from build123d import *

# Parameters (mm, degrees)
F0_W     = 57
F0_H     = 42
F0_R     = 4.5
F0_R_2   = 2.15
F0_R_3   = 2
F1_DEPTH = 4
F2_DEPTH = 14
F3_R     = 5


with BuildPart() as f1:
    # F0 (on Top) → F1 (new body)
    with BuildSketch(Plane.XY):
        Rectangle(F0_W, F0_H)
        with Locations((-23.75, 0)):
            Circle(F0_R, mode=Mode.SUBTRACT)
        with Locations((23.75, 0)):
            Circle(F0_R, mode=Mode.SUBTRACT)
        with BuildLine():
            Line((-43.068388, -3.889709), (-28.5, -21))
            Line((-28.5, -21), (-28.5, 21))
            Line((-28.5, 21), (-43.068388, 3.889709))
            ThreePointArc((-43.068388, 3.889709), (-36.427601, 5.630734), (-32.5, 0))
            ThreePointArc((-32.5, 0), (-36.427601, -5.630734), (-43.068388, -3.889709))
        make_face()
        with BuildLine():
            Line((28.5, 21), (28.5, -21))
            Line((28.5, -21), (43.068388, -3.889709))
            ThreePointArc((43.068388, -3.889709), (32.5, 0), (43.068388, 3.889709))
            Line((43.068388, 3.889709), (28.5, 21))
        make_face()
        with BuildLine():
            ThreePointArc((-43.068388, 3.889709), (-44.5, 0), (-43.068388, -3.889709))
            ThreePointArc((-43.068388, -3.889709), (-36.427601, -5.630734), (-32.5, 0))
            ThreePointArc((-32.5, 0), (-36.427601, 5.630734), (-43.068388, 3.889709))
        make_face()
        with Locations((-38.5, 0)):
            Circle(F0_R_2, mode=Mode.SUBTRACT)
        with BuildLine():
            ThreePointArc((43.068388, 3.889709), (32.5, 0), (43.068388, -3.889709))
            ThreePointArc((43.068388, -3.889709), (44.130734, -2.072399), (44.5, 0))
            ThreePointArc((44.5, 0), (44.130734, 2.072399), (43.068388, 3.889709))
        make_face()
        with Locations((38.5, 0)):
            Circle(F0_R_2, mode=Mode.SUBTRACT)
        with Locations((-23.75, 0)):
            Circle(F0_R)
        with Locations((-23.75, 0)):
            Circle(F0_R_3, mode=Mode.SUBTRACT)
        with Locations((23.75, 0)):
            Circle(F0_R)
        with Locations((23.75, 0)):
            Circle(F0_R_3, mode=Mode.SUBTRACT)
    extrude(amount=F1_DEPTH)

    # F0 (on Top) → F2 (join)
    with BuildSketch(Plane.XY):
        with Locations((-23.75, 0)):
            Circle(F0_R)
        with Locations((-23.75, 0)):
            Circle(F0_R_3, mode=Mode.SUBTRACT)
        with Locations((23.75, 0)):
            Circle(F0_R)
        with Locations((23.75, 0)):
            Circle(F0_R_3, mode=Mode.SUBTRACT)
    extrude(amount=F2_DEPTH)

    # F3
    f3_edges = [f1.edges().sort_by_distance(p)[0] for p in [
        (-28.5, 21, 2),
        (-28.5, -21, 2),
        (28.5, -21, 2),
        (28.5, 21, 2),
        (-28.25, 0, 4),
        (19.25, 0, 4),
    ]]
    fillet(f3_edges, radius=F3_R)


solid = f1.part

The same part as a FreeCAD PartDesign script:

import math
import FreeCAD as App
import Part
import Sketcher
Q = App.Units.Quantity


def edges_at(feature, points):
    """Names of the edges that pass closest to the given points."""
    edges = feature.Shape.Edges
    near = lambda p: min(range(len(edges)), key=lambda i: edges[i].distToShape(Part.Vertex(*p))[0])
    return sorted({f"Edge{near(p) + 1}" for p in points})

doc = App.newDocument("Part")
body = doc.addObject("PartDesign::Body", "Body")

# Sketch on XY plane
sketch1 = doc.addObject("Sketcher::SketchObject", "Sketch")
body.addObject(sketch1)
sketch1.AttachmentSupport = (doc.XY_Plane, [""])
sketch1.MapMode = "FlatFace"
sketch1.addGeometry(Part.LineSegment(App.Vector(-28.5, -21, 0), App.Vector(28.5, -21, 0)), False)
sketch1.addGeometry(Part.LineSegment(App.Vector(28.5, -21, 0), App.Vector(43.1, -3.9, 0)), False)
sketch1.addGeometry(Part.ArcOfCircle(Part.Circle(App.Vector(38.5, 0, 0), App.Vector(0, 0, 1), 6), math.radians(-40), math.radians(0)), False)
sketch1.addGeometry(Part.ArcOfCircle(Part.Circle(App.Vector(38.5, 0, 0), App.Vector(0, 0, 1), 6), math.radians(0), math.radians(40)), False)
sketch1.addGeometry(Part.LineSegment(App.Vector(43.1, 3.9, 0), App.Vector(28.5, 21, 0)), False)
sketch1.addGeometry(Part.LineSegment(App.Vector(28.5, 21, 0), App.Vector(-28.5, 21, 0)), False)
sketch1.addGeometry(Part.LineSegment(App.Vector(-28.5, 21, 0), App.Vector(-43.1, 3.9, 0)), False)
sketch1.addGeometry(Part.ArcOfCircle(Part.Circle(App.Vector(-38.5, 0, 0), App.Vector(0, 0, 1), 6), math.radians(140), math.radians(220)), False)
sketch1.addGeometry(Part.LineSegment(App.Vector(-43.1, -3.9, 0), App.Vector(-28.5, -21, 0)), False)
sketch1.addGeometry(Part.Circle(App.Vector(-38.5, 0, 0), App.Vector(0, 0, 1), 2.1), False)
sketch1.addGeometry(Part.Circle(App.Vector(-23.8, 0, 0), App.Vector(0, 0, 1), 2), False)
sketch1.addGeometry(Part.Circle(App.Vector(23.8, 0, 0), App.Vector(0, 0, 1), 2), False)
sketch1.addGeometry(Part.Circle(App.Vector(38.5, 0, 0), App.Vector(0, 0, 1), 2.1), False)
sketch1.addConstraint(Sketcher.Constraint("Coincident", 0, 2, 1, 1))
sketch1.addConstraint(Sketcher.Constraint("Tangent", 1, 2, 2, 1))
sketch1.addConstraint(Sketcher.Constraint("Tangent", 2, 2, 3, 1))
sketch1.addConstraint(Sketcher.Constraint("Tangent", 3, 2, 4, 1))
sketch1.addConstraint(Sketcher.Constraint("Coincident", 4, 2, 5, 1))
sketch1.addConstraint(Sketcher.Constraint("Coincident", 5, 2, 6, 1))
sketch1.addConstraint(Sketcher.Constraint("Tangent", 6, 2, 7, 1))
sketch1.addConstraint(Sketcher.Constraint("Tangent", 7, 2, 8, 1))
sketch1.addConstraint(Sketcher.Constraint("Coincident", 8, 2, 0, 1))
sketch1.addConstraint(Sketcher.Constraint("Horizontal", 0))
sketch1.addConstraint(Sketcher.Constraint("Horizontal", 5))
sketch1.addConstraint(Sketcher.Constraint("Coincident", 9, 3, 7, 3))
sketch1.addConstraint(Sketcher.Constraint("Coincident", 12, 3, 2, 3))
sketch1.addConstraint(Sketcher.Constraint("Equal", 2, 3))
sketch1.addConstraint(Sketcher.Constraint("Equal", 10, 11))
sketch1.addConstraint(Sketcher.Constraint("Equal", 9, 12))
sketch1.addConstraint(Sketcher.Constraint("Symmetric", 2, 3, 7, 3, -1, 1))
sketch1.addConstraint(Sketcher.Constraint("Symmetric", 10, 3, 11, 3, -1, 1))
sketch1.addConstraint(Sketcher.Constraint("Symmetric", 0, 2, 5, 2, -1, 1))
sketch1.addConstraint(Sketcher.Constraint("Symmetric", 3, 2, 7, 2, -1, 1))
sketch1.addConstraint(Sketcher.Constraint("Symmetric", 3, 2, 6, 2, -2))
sketch1.addConstraint(Sketcher.Constraint("PointOnObject", 10, 3, -1))
sketch1.addConstraint(Sketcher.Constraint("PointOnObject", 2, 2, -1))
sketch1.addConstraint(Sketcher.Constraint("Diameter", 10, Q("4 mm")))
sketch1.addConstraint(Sketcher.Constraint("Radius", 2, Q("6 mm")))
sketch1.addConstraint(Sketcher.Constraint("Diameter", 9, Q("4.3 mm")))
sketch1.addConstraint(Sketcher.Constraint("DistanceX", 0, 1, 0, 2, Q("57 mm")))
sketch1.addConstraint(Sketcher.Constraint("DistanceY", 0, 2, -1, 1, Q("21 mm")))
sketch1.addConstraint(Sketcher.Constraint("DistanceX", 7, 3, 2, 3, Q("76.999999 mm")))
sketch1.addConstraint(Sketcher.Constraint("DistanceX", 10, 3, 11, 3, Q("47.5 mm")))
pad1 = doc.addObject("PartDesign::Pad", "Pad")
body.addObject(pad1)
pad1.Profile = sketch1
pad1.Length = 4

# Sketch on XY plane
sketch2 = doc.addObject("Sketcher::SketchObject", "Sketch001")
body.addObject(sketch2)
sketch2.AttachmentSupport = (doc.XY_Plane, [""])
sketch2.MapMode = "FlatFace"
sketch2.addGeometry(Part.Circle(App.Vector(-23.8, 0, 0), App.Vector(0, 0, 1), 4.5), False)
sketch2.addGeometry(Part.Circle(App.Vector(-23.8, 0, 0), App.Vector(0, 0, 1), 2), False)
sketch2.addGeometry(Part.Circle(App.Vector(23.8, 0, 0), App.Vector(0, 0, 1), 4.5), False)
sketch2.addGeometry(Part.Circle(App.Vector(23.8, 0, 0), App.Vector(0, 0, 1), 2), False)
sketch2.addConstraint(Sketcher.Constraint("Coincident", 1, 3, 0, 3))
sketch2.addConstraint(Sketcher.Constraint("Coincident", 3, 3, 2, 3))
sketch2.addConstraint(Sketcher.Constraint("Equal", 0, 2))
sketch2.addConstraint(Sketcher.Constraint("Equal", 1, 3))
sketch2.addConstraint(Sketcher.Constraint("Symmetric", 0, 3, 2, 3, -1, 1))
sketch2.addConstraint(Sketcher.Constraint("PointOnObject", 0, 3, -1))
sketch2.addConstraint(Sketcher.Constraint("Diameter", 0, Q("9 mm")))
sketch2.addConstraint(Sketcher.Constraint("Diameter", 1, Q("4 mm")))
sketch2.addConstraint(Sketcher.Constraint("DistanceX", 0, 3, 2, 3, Q("47.5 mm")))
pad2 = doc.addObject("PartDesign::Pad", "Pad001")
body.addObject(pad2)
pad2.Profile = sketch2
pad2.Length = 14
doc.recompute()

fillet = doc.addObject("PartDesign::Fillet", "Fillet")
body.addObject(fillet)
fillet.Base = (pad2, edges_at(pad2, [
    (-28.5, 21, 2),
    (-28.5, -21, 2),
    (28.5, -21, 2),
    (28.5, 21, 2),
    (-28.25, 0, 4),
    (19.25, 0, 4),
]))
fillet.Radius = 5

doc.recompute()
